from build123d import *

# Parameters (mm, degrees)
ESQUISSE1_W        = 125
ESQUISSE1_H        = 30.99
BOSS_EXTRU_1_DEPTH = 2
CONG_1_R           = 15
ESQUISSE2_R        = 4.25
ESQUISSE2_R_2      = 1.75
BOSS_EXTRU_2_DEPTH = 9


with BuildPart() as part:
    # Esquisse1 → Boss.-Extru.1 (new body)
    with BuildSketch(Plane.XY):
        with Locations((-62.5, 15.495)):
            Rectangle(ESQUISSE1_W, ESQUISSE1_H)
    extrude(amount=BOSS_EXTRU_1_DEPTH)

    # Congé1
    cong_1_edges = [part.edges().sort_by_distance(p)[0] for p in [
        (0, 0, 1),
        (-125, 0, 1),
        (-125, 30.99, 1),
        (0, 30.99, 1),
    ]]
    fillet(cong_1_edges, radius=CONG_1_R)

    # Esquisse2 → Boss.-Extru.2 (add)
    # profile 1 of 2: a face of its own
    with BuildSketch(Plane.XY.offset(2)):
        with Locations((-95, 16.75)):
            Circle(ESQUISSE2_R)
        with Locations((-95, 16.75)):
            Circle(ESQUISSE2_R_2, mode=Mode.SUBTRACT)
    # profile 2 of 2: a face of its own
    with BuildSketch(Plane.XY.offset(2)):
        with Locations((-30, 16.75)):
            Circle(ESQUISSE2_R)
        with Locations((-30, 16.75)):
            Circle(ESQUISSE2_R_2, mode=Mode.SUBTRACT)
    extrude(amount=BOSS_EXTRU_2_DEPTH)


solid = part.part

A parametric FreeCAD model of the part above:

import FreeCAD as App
import Part
import Sketcher

V = App.Vector
Q = App.Units.Quantity


def edges_at(feature, points):
    """Names of the edges that pass closest to the given points."""
    edges = feature.Shape.Edges
    near = lambda p: min(range(len(edges)), key=lambda i: edges[i].distToShape(Part.Vertex(*p))[0])
    return sorted({f"Edge{near(p) + 1}" for p in points})


def add_polygon(sketch, points):
    """Adds a closed chain of lines whose ends are joined by coincident constraints."""
    first, n = sketch.GeometryCount, len(points)
    for a, b in zip(points, points[1:] + points[:1]):
        sketch.addGeometry(Part.LineSegment(App.Vector(*a, 0), App.Vector(*b, 0)), False)
    for i in range(n):
        sketch.addConstraint(Sketcher.Constraint("Coincident", first + i, 2, first + (i + 1) % n, 1))

doc = App.newDocument("Part")
body = doc.addObject("PartDesign::Body", "Body")

sketch1 = body.newObject("Sketcher::SketchObject", "Sketch")
sketch1.AttachmentSupport = (doc.getObject("XY_Plane"), [""])
sketch1.MapMode = "FlatFace"
add_polygon(sketch1, [(-125, 31), (-125, 0), (0, 0), (0, 31)])
sketch1.addConstraint([
    Sketcher.Constraint("Vertical", 0),
    Sketcher.Constraint("Horizontal", 1),
    Sketcher.Constraint("Vertical", 2),
    Sketcher.Constraint("Horizontal", 3),
    Sketcher.Constraint("Coincident", 1, 2, -1, 1),
    Sketcher.Constraint("DistanceX", 1, 1, 1, 2, Q("125 mm")),
    Sketcher.Constraint("DistanceY", 0, 2, 0, 1, Q("30.99 mm")),
])
pad1 = body.newObject("PartDesign::Pad", "Pad")
pad1.Profile = sketch1
pad1.Length = 2
doc.recompute()

fillet = body.newObject("PartDesign::Fillet", "Fillet")
fillet.Base = (pad1, edges_at(pad1, [
    (0, 0, 1),
    (-125, 0, 1),
    (-125, 30.99, 1),
    (0, 30.99, 1),
]))
fillet.Radius = 15

sketch2 = body.newObject("Sketcher::SketchObject", "Sketch001")
sketch2.AttachmentSupport = (doc.getObject("XY_Plane"), [""])
sketch2.MapMode = "FlatFace"
sketch2.AttachmentOffset = App.Placement(V(0, 0, 2), App.Rotation())
sketch2.addGeometry([
    Part.Circle(V(-95, 16.8, 0), V(0, 0, 1), 4.2),
    Part.Circle(V(-95, 16.8, 0), V(0, 0, 1), 1.8),
    Part.Circle(V(-30, 16.8, 0), V(0, 0, 1), 4.2),
    Part.Circle(V(-30, 16.8, 0), V(0, 0, 1), 1.8),
], False)
sketch2.addConstraint([
    Sketcher.Constraint("Coincident", 1, 3, 0, 3),
    Sketcher.Constraint("Coincident", 3, 3, 2, 3),
    Sketcher.Constraint("Equal", 0, 2),
    Sketcher.Constraint("Equal", 1, 3),
    Sketcher.Constraint("Horizontal", 1, 3, 2, 3),
    Sketcher.Constraint("Diameter", 0, Q("8.5 mm")),
    Sketcher.Constraint("Diameter", 1, Q("3.5 mm")),
    Sketcher.Constraint("DistanceX", 0, 3, -1, 1, Q("95 mm")),
    Sketcher.Constraint("DistanceX", 2, 3, -1, 1, Q("30 mm")),
    Sketcher.Constraint("DistanceY", -1, 1, 0, 3, Q("16.75 mm")),
])
pad2 = body.newObject("PartDesign::Pad", "Pad001")
pad2.Profile = sketch2
pad2.Length = 9

doc.recompute()
